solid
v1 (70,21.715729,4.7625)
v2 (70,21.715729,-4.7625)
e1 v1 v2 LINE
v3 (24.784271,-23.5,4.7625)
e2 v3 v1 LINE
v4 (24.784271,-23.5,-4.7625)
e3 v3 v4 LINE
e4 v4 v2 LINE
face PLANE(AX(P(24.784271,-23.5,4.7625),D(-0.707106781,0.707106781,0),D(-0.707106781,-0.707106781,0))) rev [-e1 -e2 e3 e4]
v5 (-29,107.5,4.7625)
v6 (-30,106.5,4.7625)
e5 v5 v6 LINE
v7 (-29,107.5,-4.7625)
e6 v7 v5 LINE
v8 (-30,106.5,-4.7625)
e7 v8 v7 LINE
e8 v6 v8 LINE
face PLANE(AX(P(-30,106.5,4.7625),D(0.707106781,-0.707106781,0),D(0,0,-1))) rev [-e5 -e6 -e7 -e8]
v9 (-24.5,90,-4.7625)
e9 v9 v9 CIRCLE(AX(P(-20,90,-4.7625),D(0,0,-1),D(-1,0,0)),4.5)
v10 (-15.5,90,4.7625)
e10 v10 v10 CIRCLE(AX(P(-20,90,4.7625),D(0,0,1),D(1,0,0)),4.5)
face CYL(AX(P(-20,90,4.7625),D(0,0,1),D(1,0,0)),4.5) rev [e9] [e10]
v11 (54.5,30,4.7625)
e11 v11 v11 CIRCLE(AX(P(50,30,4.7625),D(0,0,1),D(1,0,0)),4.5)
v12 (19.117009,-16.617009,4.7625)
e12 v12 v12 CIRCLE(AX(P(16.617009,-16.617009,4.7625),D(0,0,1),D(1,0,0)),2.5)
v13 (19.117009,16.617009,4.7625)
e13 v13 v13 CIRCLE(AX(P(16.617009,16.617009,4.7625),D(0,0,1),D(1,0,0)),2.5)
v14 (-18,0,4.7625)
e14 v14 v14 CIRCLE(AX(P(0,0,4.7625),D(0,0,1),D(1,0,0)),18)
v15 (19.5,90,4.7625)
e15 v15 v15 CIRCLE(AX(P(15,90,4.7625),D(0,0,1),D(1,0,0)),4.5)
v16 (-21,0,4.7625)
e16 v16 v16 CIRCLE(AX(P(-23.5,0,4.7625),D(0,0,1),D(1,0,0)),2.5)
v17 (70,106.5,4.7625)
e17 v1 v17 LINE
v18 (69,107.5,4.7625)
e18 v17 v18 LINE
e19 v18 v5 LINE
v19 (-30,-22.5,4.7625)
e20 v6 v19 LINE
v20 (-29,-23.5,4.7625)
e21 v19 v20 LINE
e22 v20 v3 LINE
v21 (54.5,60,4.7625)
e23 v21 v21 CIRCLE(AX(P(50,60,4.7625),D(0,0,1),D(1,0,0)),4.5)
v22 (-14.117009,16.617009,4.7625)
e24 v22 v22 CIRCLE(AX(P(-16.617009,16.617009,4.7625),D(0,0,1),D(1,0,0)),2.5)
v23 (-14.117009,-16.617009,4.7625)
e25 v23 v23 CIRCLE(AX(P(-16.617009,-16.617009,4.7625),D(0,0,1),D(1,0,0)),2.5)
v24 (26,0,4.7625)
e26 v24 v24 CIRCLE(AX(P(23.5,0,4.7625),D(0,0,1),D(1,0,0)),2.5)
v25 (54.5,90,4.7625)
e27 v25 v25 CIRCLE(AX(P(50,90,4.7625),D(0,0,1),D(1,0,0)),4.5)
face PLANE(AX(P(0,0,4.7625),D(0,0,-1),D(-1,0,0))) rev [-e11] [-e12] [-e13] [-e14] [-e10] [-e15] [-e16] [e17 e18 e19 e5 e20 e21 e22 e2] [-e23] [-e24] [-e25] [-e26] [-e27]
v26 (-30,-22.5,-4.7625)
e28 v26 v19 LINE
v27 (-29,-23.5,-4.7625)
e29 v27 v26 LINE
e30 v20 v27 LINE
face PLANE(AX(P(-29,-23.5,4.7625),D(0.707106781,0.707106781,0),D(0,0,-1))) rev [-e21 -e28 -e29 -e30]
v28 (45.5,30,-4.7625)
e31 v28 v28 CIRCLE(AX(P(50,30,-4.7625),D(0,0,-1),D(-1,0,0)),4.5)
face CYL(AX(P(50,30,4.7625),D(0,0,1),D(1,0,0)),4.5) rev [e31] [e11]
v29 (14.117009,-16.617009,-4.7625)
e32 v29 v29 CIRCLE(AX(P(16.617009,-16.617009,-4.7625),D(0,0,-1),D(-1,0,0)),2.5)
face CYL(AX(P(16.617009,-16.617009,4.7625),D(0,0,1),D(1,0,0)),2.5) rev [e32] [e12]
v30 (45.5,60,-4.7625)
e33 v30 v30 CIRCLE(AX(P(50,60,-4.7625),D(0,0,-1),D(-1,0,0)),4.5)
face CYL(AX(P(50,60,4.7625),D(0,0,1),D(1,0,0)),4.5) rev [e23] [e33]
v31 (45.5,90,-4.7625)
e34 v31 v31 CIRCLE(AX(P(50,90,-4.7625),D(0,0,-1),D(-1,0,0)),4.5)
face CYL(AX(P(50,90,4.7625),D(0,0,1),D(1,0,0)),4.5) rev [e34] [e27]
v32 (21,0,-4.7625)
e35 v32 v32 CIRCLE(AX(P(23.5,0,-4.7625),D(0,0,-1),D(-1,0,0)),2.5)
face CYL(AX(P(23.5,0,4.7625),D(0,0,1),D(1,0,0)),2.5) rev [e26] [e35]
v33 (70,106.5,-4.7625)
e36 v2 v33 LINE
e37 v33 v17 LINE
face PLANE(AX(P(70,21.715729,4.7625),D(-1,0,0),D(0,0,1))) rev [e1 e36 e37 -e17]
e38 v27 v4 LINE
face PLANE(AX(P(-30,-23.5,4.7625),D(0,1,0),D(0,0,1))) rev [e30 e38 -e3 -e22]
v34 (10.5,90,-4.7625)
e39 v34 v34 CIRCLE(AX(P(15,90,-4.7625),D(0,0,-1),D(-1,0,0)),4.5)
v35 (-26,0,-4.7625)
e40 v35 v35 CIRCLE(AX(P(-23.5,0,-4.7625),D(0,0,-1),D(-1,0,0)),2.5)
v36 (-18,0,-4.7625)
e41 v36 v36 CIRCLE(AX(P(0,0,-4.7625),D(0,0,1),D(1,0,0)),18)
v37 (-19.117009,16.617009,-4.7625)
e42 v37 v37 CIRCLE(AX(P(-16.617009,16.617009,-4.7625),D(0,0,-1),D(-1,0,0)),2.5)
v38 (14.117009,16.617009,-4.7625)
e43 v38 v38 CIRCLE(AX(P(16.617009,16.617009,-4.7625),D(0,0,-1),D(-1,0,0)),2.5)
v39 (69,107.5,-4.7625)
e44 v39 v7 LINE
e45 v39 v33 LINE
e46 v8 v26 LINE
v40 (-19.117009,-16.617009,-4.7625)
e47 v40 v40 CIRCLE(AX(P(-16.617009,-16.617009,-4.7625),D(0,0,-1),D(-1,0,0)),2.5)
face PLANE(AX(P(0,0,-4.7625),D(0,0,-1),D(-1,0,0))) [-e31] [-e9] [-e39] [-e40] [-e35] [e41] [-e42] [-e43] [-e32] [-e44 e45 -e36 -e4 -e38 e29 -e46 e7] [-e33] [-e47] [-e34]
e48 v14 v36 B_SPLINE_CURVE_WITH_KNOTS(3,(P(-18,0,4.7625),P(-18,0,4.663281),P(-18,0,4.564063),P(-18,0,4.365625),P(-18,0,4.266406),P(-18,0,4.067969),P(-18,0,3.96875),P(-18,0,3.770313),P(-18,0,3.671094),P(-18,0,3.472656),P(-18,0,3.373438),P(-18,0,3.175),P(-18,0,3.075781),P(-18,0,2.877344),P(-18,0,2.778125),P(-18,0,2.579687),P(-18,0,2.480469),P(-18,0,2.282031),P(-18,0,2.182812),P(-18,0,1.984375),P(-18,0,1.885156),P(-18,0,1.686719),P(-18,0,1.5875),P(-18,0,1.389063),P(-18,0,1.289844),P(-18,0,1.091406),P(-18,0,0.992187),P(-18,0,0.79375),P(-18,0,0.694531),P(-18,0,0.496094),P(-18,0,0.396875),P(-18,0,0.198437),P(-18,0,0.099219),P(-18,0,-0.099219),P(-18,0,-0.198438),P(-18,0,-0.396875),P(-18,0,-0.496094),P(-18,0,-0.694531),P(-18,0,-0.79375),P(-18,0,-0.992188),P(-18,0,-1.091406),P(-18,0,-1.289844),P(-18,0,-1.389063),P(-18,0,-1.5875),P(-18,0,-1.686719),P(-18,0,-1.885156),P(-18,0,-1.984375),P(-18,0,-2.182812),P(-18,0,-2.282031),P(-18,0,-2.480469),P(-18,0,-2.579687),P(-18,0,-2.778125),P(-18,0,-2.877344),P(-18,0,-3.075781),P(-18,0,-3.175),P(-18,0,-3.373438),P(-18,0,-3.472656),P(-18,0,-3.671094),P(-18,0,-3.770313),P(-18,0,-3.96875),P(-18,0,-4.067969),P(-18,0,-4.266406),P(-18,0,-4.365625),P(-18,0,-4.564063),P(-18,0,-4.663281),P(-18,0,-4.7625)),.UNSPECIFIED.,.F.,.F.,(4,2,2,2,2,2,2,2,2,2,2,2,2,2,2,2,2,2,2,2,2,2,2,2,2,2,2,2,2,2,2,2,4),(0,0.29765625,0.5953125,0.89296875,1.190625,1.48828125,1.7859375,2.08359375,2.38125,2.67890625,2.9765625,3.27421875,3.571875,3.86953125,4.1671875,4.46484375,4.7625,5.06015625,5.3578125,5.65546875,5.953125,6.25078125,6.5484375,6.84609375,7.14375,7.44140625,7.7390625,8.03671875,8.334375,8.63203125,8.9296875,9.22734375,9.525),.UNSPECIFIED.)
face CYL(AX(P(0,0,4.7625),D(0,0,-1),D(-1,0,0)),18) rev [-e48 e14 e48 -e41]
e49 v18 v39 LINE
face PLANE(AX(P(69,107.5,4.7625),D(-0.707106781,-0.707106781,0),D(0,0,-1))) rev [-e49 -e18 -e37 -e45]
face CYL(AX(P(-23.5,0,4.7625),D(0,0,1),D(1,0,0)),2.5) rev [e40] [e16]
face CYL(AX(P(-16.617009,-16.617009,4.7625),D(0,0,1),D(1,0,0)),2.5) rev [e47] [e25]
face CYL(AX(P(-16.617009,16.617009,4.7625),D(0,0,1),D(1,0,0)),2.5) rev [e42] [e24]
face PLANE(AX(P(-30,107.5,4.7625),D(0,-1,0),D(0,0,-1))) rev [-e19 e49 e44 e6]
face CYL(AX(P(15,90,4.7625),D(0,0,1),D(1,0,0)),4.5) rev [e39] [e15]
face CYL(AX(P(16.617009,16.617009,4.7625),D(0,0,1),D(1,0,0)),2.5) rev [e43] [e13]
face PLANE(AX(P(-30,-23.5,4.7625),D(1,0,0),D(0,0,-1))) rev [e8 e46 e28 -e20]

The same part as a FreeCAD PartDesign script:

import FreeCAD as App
import Part
import Sketcher

V = App.Vector
Q = App.Units.Quantity


def edges_at(feature, points):
    """Names of the edges that pass closest to the given points."""
    edges = feature.Shape.Edges
    near = lambda p: min(range(len(edges)), key=lambda i: edges[i].distToShape(Part.Vertex(*p))[0])
    return sorted({f"Edge{near(p) + 1}" for p in points})


def add_polygon(sketch, points):
    """Adds a closed chain of lines whose ends are joined by coincident constraints."""
    first, n = sketch.GeometryCount, len(points)
    for a, b in zip(points, points[1:] + points[:1]):
        sketch.addGeometry(Part.LineSegment(App.Vector(*a, 0), App.Vector(*b, 0)), False)
    for i in range(n):
        sketch.addConstraint(Sketcher.Constraint("Coincident", first + i, 2, first + (i + 1) % n, 1))

doc = App.newDocument("Part")
body = doc.addObject("PartDesign::Body", "Body")

sketch1 = body.newObject("Sketcher::SketchObject", "Sketch")
sketch1.AttachmentSupport = (doc.getObject("XY_Plane"), [""])
sketch1.MapMode = "FlatFace"
add_polygon(sketch1, [(-30, -24), (25, -24), (70, 22), (70, 108), (-30, 108)])
sketch1.addGeometry(Part.Circle(V(0, 0, 0), V(0, 0, 1), 18), False)
sketch1.addConstraint([
    Sketcher.Constraint("Horizontal", 0),
    Sketcher.Constraint("Vertical", 2),
    Sketcher.Constraint("Horizontal", 3),
    Sketcher.Constraint("Vertical", 4),
    Sketcher.Constraint("Coincident", 5, 3, -1, 1),
    Sketcher.Constraint("Diameter", 5, Q("36 mm")),
    Sketcher.Constraint("DistanceX", 3, 2, 3, 1, Q("100 mm")),
    Sketcher.Constraint("DistanceY", 4, 2, 4, 1, Q("131 mm")),
    Sketcher.Constraint("Angle", 1, Q("45 deg")),
    Sketcher.Constraint("DistanceX", -1, 1, 1, 2, Q("70 mm")),
    Sketcher.Constraint("DistanceY", 0, 2, -1, 1, Q("23.5 mm")),
    Sketcher.Constraint("DistanceX", 0, 1, 0, 2, Q("54.784271 mm")),
])
pad1 = body.newObject("PartDesign::Pad", "Pad")
pad1.Profile = sketch1
pad1.Length = 9.525
pad1.Midplane = True

sketch2 = body.newObject("Sketcher::SketchObject", "Sketch001")
sketch2.AttachmentSupport = (doc.getObject("XY_Plane"), [""])
sketch2.MapMode = "FlatFace"
sketch2.AttachmentOffset = App.Placement(V(0, 0, 4.7625), App.Rotation())
sketch2.addGeometry([
    Part.Circle(V(-20, 90, 0), V(0, 0, 1), 4.5),
    Part.Circle(V(15, 90, 0), V(0, 0, 1), 4.5),
    Part.Circle(V(50, 90, 0), V(0, 0, 1), 4.5),
    Part.Circle(V(50, 60, 0), V(0, 0, 1), 4.5),
    Part.Circle(V(50, 30, 0), V(0, 0, 1), 4.5),
], False)
sketch2.addConstraint([
    Sketcher.Constraint("Equal", 0, 1),
    Sketcher.Constraint("Equal", 1, 2),
    Sketcher.Constraint("Equal", 2, 3),
    Sketcher.Constraint("Equal", 3, 4),
    Sketcher.Constraint("Horizontal", 0, 3, 1, 3),
    Sketcher.Constraint("Horizontal", 1, 3, 2, 3),
    Sketcher.Constraint("Vertical", 2, 3, 3, 3),
    Sketcher.Constraint("Vertical", 3, 3, 4, 3),
    Sketcher.Constraint("Diameter", 0, Q("9 mm")),
    Sketcher.Constraint("DistanceX", 0, 3, -1, 1, Q("20 mm")),
    Sketcher.Constraint("DistanceY", -1, 1, 0, 3, Q("90 mm")),
    Sketcher.Constraint("DistanceX", -1, 1, 1, 3, Q("15 mm")),
    Sketcher.Constraint("DistanceX", -1, 1, 2, 3, Q("50 mm")),
    Sketcher.Constraint("DistanceY", -1, 1, 3, 3, Q("60 mm")),
    Sketcher.Constraint("DistanceY", -1, 1, 4, 3, Q("30 mm")),
])
doc.recompute()
hole = body.newObject("PartDesign::Hole", "Hole")
hole.Profile = sketch2
hole.ThreadType = "None"
hole.Diameter = 9
hole.DepthType = "ThroughAll"

sketch3 = body.newObject("Sketcher::SketchObject", "Sketch002")
sketch3.AttachmentSupport = (doc.getObject("XY_Plane"), [""])
sketch3.MapMode = "FlatFace"
sketch3.AttachmentOffset = App.Placement(V(0, 0, 4.7625), App.Rotation())
sketch3.addGeometry([
    Part.Circle(V(16.6, 16.6, 0), V(0, 0, 1), 2.5),
    Part.Circle(V(23.5, 0, 0), V(0, 0, 1), 2.5),
    Part.Circle(V(16.6, -16.6, 0), V(0, 0, 1), 2.5),
    Part.Circle(V(-16.6, -16.6, 0), V(0, 0, 1), 2.5),
    Part.Circle(V(-23.5, 0, 0), V(0, 0, 1), 2.5),
    Part.Circle(V(-16.6, 16.6, 0), V(0, 0, 1), 2.5),
], False)
sketch3.addConstraint([
    Sketcher.Constraint("Equal", 0, 1),
    Sketcher.Constraint("Equal", 1, 2),
    Sketcher.Constraint("Equal", 2, 3),
    Sketcher.Constraint("Equal", 3, 4),
    Sketcher.Constraint("Equal", 4, 5),
    Sketcher.Constraint("Symmetric", 0, 3, 3, 3, -1, 1),
    Sketcher.Constraint("Symmetric", 1, 3, 4, 3, -1, 1),
    Sketcher.Constraint("Symmetric", 2, 3, 5, 3, -1, 1),
    Sketcher.Constraint("Symmetric", 2, 3, 3, 3, -2),
    Sketcher.Constraint("PointOnObject", 1, 3, -1),
    Sketcher.Constraint("Diameter", 0, Q("5 mm")),
    Sketcher.Constraint("DistanceX", 4, 3, 1, 3, Q("47 mm")),
    Sketcher.Constraint("DistanceX", -1, 1, 0, 3, Q("16.617009 mm")),
    Sketcher.Constraint("DistanceY", -1, 1, 0, 3, Q("16.617009 mm")),
])
doc.recompute()
hole2 = body.newObject("PartDesign::Hole", "Hole001")
hole2.Profile = sketch3
hole2.ThreadType = "None"
hole2.Diameter = 5
hole2.DepthType = "ThroughAll"
doc.recompute()

chamfer = body.newObject("PartDesign::Chamfer", "Chamfer")
chamfer.Base = (hole2, edges_at(hole2, [(-30, 107.5, 0), (70, 107.5, 0), (-30, -23.5, 0)]))
chamfer.Size = 1

doc.recompute()
